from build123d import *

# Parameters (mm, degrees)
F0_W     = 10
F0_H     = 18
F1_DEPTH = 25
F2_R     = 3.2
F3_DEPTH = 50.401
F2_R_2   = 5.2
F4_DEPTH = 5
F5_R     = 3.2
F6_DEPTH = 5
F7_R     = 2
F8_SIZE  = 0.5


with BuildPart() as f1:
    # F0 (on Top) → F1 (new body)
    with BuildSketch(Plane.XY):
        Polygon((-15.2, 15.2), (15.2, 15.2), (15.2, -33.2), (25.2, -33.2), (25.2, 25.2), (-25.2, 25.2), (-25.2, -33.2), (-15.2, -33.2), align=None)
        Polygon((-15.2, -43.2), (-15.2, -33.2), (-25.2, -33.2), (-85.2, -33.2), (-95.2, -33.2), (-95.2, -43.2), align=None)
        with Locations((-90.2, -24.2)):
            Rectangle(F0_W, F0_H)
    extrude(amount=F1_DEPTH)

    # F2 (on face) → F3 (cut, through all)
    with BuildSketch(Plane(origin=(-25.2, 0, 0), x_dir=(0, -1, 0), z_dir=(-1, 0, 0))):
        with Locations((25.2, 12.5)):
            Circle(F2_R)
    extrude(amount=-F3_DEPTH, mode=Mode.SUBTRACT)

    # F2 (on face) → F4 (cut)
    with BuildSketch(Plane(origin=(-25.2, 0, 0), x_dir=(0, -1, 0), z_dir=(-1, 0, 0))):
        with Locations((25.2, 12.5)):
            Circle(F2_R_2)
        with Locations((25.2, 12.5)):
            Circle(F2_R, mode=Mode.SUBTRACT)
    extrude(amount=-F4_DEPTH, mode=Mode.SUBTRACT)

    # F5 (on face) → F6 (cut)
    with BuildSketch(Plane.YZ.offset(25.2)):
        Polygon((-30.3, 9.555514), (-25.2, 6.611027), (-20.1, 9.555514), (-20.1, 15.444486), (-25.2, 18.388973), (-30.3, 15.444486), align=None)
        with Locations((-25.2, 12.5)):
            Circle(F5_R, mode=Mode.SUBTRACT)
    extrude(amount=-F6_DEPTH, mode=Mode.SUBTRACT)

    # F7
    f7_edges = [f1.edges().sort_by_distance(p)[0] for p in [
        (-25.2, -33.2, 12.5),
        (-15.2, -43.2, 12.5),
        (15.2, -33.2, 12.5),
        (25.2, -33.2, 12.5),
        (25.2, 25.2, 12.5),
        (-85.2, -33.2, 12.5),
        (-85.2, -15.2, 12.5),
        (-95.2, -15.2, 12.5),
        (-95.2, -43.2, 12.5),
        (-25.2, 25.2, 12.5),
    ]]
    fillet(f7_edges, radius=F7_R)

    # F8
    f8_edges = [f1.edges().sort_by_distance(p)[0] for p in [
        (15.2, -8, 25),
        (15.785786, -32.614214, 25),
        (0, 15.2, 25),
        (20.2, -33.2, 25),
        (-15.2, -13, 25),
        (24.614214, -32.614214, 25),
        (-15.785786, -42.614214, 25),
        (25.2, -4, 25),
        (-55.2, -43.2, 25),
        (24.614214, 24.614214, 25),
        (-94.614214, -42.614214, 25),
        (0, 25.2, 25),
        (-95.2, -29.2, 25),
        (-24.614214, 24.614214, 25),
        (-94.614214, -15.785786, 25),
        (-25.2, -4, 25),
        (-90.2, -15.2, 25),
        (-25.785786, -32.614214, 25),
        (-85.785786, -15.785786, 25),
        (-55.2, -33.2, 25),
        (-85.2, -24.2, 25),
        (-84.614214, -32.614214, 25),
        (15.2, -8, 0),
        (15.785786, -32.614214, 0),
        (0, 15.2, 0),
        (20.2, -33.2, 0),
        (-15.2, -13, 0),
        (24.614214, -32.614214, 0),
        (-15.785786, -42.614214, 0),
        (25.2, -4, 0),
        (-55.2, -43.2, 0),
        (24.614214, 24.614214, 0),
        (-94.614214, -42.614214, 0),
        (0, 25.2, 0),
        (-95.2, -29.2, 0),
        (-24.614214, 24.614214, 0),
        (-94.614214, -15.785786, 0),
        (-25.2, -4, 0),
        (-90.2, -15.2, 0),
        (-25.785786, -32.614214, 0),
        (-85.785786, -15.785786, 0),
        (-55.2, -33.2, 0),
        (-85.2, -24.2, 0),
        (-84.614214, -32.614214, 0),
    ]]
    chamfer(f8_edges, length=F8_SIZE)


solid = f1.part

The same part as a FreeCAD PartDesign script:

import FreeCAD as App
import Part
import Sketcher
Q = App.Units.Quantity


def edges_at(feature, points):
    """Names of the edges that pass closest to the given points."""
    edges = feature.Shape.Edges
    near = lambda p: min(range(len(edges)), key=lambda i: edges[i].distToShape(Part.Vertex(*p))[0])
    return sorted({f"Edge{near(p) + 1}" for p in points})


def add_polygon(sketch, points):
    """Adds a closed chain of lines whose ends are joined by coincident constraints."""
    first, n = sketch.GeometryCount, len(points)
    for a, b in zip(points, points[1:] + points[:1]):
        sketch.addGeometry(Part.LineSegment(App.Vector(*a, 0), App.Vector(*b, 0)), False)
    for i in range(n):
        sketch.addConstraint(Sketcher.Constraint("Coincident", first + i, 2, first + (i + 1) % n, 1))

doc = App.newDocument("Part")
body = doc.addObject("PartDesign::Body", "Body")

# Sketch on XY plane
sketch1 = body.newObject("Sketcher::SketchObject", "Sketch")
sketch1.AttachmentSupport = (doc.getObject("XY_Plane"), [""])
sketch1.MapMode = "FlatFace"
add_polygon(sketch1, [(-15, 15), (15, 15), (15, -33), (25, -33), (25, 25), (-25, 25), (-25, -33), (-85, -33), (-85, -15), (-95, -15), (-95, -43), (-15, -43)])  # lines 0-11
sketch1.addConstraint([
    Sketcher.Constraint("Horizontal", 0),
    Sketcher.Constraint("Vertical", 1),
    Sketcher.Constraint("Horizontal", 2),
    Sketcher.Constraint("Vertical", 3),
    Sketcher.Constraint("Horizontal", 4),
    Sketcher.Constraint("Vertical", 5),
    Sketcher.Constraint("Horizontal", 6),
    Sketcher.Constraint("Vertical", 7),
    Sketcher.Constraint("Horizontal", 8),
    Sketcher.Constraint("Vertical", 9),
    Sketcher.Constraint("Horizontal", 10),
    Sketcher.Constraint("Vertical", 11),
    Sketcher.Constraint("Symmetric", 2, 2, 5, 2, -2),
    Sketcher.Constraint("Equal", 2, 8),
    Sketcher.Constraint("Equal", 5, 11),
    Sketcher.Constraint("DistanceX", 2, 1, 2, 2, 10.0),
    Sketcher.Constraint("DistanceX", 6, 2, 6, 1, 60.0),
    Sketcher.Constraint("DistanceX", 10, 1, 10, 2, 80.0),
    Sketcher.Constraint("DistanceY", 7, 1, 7, 2, 18.0),
    Sketcher.Constraint("DistanceY", 9, 2, 9, 1, 28.0),
    Sketcher.Constraint("DistanceX", 0, 1, 0, 2, 30.4),
    Sketcher.Constraint("DistanceY", 1, 2, 1, 1, 48.4),
    Sketcher.Constraint("DistanceY", -1, 1, 0, 2, 15.2),
])
pad1 = body.newObject("PartDesign::Pad", "Pad")
pad1.Profile = sketch1
pad1.Length = 25

# Sketch on YZ plane
sketch2 = body.newObject("Sketcher::SketchObject", "Sketch001")
sketch2.AttachmentSupport = (doc.getObject("YZ_Plane"), [""])
sketch2.MapMode = "FlatFace"
sketch2.AttachmentOffset = App.Placement(App.Vector(0, 0, -25.2), App.Rotation())
sketch2.addGeometry(Part.Circle(App.Vector(-25.2, 12.5, 0), App.Vector(0, 0, 1), 3.2), False)
sketch2.addConstraint([
    Sketcher.Constraint("Diameter", 0, 6.4),
    Sketcher.Constraint("DistanceX", 0, 3, -1, 1, 25.2),
    Sketcher.Constraint("DistanceY", -1, 1, 0, 3, 12.5),
])
pocket1 = body.newObject("PartDesign::Pocket", "Pocket")
pocket1.Profile = sketch2
pocket1.Type = "ThroughAll"
pocket1.Reversed = True

# Sketch on YZ plane
sketch3 = body.newObject("Sketcher::SketchObject", "Sketch002")
sketch3.AttachmentSupport = (doc.getObject("YZ_Plane"), [""])
sketch3.MapMode = "FlatFace"
sketch3.AttachmentOffset = App.Placement(App.Vector(0, 0, -25.2), App.Rotation())
sketch3.addGeometry([
    Part.Circle(App.Vector(-25.2, 12.5, 0), App.Vector(0, 0, 1), 5.2),
    Part.Circle(App.Vector(-25.2, 12.5, 0), App.Vector(0, 0, 1), 3.2),
], False)
sketch3.addConstraint([
    Sketcher.Constraint("Coincident", 1, 3, 0, 3),
    Sketcher.Constraint("Diameter", 0, 10.4),
    Sketcher.Constraint("Diameter", 1, 6.4),
    Sketcher.Constraint("DistanceX", 0, 3, -1, 1, 25.2),
    Sketcher.Constraint("DistanceY", -1, 1, 0, 3, 12.5),
])
pocket2 = body.newObject("PartDesign::Pocket", "Pocket001")
pocket2.Profile = sketch3
pocket2.Length = 5
pocket2.Reversed = True

# Sketch on YZ plane
sketch4 = body.newObject("Sketcher::SketchObject", "Sketch003")
sketch4.AttachmentSupport = (doc.getObject("YZ_Plane"), [""])
sketch4.MapMode = "FlatFace"
sketch4.AttachmentOffset = App.Placement(App.Vector(0, 0, 25.2), App.Rotation())
add_polygon(sketch4, [(-30.3, 9.6), (-25.2, 6.6), (-20.1, 9.6), (-20.1, 15.4), (-25.2, 18.4), (-30.3, 15.4)])  # lines 0-5
sketch4.addGeometry(Part.Circle(App.Vector(-25.2, 12.5, 0), App.Vector(0, 0, 1), 3.2), False)  # 6
sketch4.addConstraint([
    Sketcher.Constraint("Vertical", 2),
    Sketcher.Constraint("Vertical", 5),
    Sketcher.Constraint("Parallel", 0, 3),
    Sketcher.Constraint("Parallel", 1, 4),
    Sketcher.Constraint("Horizontal", 2, 2, 4, 2),
    Sketcher.Constraint("Horizontal", 1, 2, 5, 2),
    Sketcher.Constraint("Vertical", 6, 3, 0, 2),
    Sketcher.Constraint("Vertical", 0, 2, 3, 2),
    Sketcher.Constraint("Diameter", 6, 6.4),
    Sketcher.Constraint("Angle", 0, Q("-30.000005 deg")),
    Sketcher.Constraint("DistanceX", 6, 3, -1, 1, 25.2),
    Sketcher.Constraint("DistanceY", -1, 1, 6, 3, 12.5),
    Sketcher.Constraint("DistanceX", 1, 2, -1, 1, 20.1),
    Sketcher.Constraint("DistanceY", 2, 1, 2, 2, 5.888972),
    Sketcher.Constraint("DistanceY", -1, 1, 0, 2, 6.611027),
])
pocket3 = body.newObject("PartDesign::Pocket", "Pocket002")
pocket3.Profile = sketch4
pocket3.Length = 5
doc.recompute()

fillet = body.newObject("PartDesign::Fillet", "Fillet")
fillet.Base = (pocket3, edges_at(pocket3, [
    (-25.2, -33.2, 12.5),
    (-15.2, -43.2, 12.5),
    (15.2, -33.2, 12.5),
    (25.2, -33.2, 12.5),
    (25.2, 25.2, 12.5),
    (-85.2, -33.2, 12.5),
    (-85.2, -15.2, 12.5),
    (-95.2, -15.2, 12.5),
    (-95.2, -43.2, 12.5),
    (-25.2, 25.2, 12.5),
]))
fillet.Radius = 2
doc.recompute()

chamfer = body.newObject("PartDesign::Chamfer", "Chamfer")
chamfer.Base = (fillet, edges_at(fillet, [
    (15.2, -8, 25),
    (15.786, -32.614, 25),
    (0, 15.2, 25),
    (20.2, -33.2, 25),
    (-15.2, -13, 25),
    (24.614, -32.614, 25),
    (-15.786, -42.614, 25),
    (25.2, -4, 25),
    (-55.2, -43.2, 25),
    (24.614, 24.614, 25),
    (-94.614, -42.614, 25),
    (0, 25.2, 25),
    (-95.2, -29.2, 25),
    (-24.614, 24.614, 25),
    (-94.614, -15.786, 25),
    (-25.2, -4, 25),
    (-90.2, -15.2, 25),
    (-25.786, -32.614, 25),
    (-85.786, -15.786, 25),
    (-55.2, -33.2, 25),
    (-85.2, -24.2, 25),
    (-84.614, -32.614, 25),
    (15.2, -8, 0),
    (15.786, -32.614, 0),
    (0, 15.2, 0),
    (20.2, -33.2, 0),
    (-15.2, -13, 0),
    (24.614, -32.614, 0),
    (-15.786, -42.614, 0),
    (25.2, -4, 0),
    (-55.2, -43.2, 0),
    (24.614, 24.614, 0),
    (-94.614, -42.614, 0),
    (0, 25.2, 0),
    (-95.2, -29.2, 0),
    (-24.614, 24.614, 0),
    (-94.614, -15.786, 0),
    (-25.2, -4, 0),
    (-90.2, -15.2, 0),
    (-25.786, -32.614, 0),
    (-85.786, -15.786, 0),
    (-55.2, -33.2, 0),
    (-85.2, -24.2, 0),
    (-84.614, -32.614, 0),
]))
chamfer.Size = 0.5

doc.recompute()
